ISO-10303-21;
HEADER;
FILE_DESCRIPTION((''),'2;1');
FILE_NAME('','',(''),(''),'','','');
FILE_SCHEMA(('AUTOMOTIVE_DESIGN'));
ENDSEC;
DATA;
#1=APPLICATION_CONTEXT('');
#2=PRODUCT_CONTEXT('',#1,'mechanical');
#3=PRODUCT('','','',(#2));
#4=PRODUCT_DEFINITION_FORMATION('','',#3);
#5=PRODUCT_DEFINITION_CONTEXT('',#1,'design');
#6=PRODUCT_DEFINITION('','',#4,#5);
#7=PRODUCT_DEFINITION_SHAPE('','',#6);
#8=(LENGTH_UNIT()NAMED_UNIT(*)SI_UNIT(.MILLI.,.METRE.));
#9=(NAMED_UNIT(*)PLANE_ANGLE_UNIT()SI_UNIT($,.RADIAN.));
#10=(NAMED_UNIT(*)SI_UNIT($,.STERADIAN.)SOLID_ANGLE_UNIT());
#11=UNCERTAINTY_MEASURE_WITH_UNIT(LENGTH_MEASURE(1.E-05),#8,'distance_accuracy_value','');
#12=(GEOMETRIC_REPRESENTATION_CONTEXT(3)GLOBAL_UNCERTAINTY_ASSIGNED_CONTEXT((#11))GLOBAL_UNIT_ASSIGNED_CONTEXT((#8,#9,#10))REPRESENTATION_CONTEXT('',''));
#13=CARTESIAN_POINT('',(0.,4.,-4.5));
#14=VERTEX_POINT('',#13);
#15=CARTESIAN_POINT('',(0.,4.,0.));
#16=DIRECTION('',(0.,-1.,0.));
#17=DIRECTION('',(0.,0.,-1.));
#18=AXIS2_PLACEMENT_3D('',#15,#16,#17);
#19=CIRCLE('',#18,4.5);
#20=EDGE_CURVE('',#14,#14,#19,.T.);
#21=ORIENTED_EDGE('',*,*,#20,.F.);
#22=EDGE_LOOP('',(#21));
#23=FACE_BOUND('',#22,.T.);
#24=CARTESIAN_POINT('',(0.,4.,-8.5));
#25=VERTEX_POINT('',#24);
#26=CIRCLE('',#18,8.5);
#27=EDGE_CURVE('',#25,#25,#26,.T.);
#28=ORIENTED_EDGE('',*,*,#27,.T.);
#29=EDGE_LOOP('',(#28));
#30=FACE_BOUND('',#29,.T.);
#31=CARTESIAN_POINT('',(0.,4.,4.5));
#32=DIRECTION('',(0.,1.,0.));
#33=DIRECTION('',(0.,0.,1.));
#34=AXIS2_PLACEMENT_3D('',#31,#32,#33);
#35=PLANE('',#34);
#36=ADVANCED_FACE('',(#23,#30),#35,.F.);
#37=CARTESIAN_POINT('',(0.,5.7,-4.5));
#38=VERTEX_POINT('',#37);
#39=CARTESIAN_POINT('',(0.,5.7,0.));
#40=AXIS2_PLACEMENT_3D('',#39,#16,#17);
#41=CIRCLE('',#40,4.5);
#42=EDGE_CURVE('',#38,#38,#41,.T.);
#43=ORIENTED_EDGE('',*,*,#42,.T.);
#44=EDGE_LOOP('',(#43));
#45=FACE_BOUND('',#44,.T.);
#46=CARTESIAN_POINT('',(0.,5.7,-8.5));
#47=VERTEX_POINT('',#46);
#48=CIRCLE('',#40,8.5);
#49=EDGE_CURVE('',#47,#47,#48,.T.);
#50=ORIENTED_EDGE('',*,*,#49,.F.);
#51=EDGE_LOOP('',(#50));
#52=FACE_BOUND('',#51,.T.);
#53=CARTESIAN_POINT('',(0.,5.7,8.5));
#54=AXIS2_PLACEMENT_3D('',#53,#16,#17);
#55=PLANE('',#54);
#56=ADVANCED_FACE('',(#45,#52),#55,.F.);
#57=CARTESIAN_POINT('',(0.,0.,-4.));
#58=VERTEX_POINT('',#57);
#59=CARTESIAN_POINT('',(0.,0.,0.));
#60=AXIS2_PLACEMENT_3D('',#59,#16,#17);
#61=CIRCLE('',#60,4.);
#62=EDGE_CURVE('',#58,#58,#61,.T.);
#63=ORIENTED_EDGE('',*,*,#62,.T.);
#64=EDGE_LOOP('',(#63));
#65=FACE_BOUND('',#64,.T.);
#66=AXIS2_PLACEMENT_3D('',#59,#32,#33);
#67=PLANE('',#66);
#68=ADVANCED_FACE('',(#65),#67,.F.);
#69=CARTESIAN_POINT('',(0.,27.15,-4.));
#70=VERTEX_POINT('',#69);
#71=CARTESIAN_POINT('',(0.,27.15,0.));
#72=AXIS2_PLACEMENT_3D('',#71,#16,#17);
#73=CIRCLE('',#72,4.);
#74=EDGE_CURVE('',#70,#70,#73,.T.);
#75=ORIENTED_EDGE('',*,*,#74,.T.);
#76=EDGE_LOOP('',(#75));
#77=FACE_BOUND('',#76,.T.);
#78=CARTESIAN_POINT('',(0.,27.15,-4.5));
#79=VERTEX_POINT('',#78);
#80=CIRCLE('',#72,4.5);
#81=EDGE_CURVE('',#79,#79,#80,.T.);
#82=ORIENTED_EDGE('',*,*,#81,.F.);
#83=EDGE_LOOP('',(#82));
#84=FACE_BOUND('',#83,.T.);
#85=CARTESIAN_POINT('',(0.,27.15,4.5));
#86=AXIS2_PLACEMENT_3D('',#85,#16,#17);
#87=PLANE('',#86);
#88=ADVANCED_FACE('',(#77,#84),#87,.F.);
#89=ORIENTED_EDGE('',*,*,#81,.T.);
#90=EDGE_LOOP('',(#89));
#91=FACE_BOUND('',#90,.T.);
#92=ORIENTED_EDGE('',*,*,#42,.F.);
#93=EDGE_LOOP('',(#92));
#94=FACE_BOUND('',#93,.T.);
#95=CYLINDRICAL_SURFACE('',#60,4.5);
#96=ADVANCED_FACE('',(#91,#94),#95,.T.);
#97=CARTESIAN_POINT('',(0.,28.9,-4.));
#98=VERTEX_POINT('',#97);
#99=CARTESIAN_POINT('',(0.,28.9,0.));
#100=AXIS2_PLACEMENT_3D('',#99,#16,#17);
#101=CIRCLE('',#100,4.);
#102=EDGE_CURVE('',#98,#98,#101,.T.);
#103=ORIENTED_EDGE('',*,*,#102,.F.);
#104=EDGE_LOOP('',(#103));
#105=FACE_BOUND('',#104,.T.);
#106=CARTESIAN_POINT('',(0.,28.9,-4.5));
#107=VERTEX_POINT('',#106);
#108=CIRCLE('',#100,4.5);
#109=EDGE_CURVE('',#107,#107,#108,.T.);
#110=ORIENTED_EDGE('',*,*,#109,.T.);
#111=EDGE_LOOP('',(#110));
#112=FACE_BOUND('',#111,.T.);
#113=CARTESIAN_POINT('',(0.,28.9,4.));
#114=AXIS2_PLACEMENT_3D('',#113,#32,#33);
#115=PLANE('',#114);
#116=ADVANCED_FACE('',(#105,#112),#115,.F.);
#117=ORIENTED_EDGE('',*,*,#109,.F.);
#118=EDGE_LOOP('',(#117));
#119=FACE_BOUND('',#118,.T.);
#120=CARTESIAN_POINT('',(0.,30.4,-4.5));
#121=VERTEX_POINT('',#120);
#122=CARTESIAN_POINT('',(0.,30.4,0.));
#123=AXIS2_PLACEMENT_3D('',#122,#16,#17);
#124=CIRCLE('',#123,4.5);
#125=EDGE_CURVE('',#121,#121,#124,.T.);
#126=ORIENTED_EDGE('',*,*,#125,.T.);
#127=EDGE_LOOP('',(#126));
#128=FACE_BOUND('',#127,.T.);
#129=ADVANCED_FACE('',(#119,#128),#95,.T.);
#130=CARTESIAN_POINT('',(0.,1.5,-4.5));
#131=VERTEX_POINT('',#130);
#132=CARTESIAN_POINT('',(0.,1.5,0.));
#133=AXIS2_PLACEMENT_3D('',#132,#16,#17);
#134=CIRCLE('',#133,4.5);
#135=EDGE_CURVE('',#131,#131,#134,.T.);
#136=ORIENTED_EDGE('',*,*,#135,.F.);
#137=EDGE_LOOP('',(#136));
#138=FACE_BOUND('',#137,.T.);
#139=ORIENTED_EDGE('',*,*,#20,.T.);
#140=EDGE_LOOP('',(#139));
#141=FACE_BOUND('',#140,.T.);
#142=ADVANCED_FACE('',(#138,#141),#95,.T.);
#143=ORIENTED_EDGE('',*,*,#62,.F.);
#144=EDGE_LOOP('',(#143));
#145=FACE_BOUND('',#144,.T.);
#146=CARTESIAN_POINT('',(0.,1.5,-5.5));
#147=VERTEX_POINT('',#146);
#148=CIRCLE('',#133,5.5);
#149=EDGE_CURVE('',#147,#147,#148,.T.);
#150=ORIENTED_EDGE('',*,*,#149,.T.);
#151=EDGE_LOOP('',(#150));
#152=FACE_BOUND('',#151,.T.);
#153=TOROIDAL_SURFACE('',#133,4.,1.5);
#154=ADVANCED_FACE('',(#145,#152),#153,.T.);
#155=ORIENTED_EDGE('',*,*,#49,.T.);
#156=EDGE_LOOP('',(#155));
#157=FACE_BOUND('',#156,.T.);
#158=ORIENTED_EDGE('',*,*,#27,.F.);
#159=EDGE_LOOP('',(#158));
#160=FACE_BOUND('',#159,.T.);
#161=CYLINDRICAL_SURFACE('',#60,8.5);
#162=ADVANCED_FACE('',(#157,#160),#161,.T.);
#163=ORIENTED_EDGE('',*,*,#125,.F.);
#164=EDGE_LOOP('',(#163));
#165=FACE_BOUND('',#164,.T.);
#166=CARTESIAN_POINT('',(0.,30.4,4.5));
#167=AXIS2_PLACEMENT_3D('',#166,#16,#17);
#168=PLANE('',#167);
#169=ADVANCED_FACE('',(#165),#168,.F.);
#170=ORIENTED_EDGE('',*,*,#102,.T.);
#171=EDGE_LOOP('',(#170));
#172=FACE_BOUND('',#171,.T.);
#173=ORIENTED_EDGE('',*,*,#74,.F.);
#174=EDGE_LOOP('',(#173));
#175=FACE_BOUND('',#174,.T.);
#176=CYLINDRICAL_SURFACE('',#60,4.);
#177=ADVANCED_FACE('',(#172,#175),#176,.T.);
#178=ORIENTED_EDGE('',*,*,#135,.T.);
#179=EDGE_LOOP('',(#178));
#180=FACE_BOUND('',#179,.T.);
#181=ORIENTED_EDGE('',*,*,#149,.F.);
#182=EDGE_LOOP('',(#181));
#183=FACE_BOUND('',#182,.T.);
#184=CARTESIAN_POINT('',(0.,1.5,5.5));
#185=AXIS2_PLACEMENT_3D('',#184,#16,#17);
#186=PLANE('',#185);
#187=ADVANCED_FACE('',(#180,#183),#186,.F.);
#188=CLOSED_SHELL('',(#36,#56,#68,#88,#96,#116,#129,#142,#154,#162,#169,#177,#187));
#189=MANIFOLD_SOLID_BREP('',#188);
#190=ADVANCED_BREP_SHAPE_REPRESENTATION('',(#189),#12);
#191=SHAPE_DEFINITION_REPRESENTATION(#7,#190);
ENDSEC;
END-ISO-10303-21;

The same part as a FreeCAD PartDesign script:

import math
import FreeCAD as App
import Part
import Sketcher

V = App.Vector
Q = App.Units.Quantity

doc = App.newDocument("Part")
body = doc.addObject("PartDesign::Body", "Body")

# Sketch on YZ plane
sketch1 = body.newObject("Sketcher::SketchObject", "Sketch")
sketch1.AttachmentSupport = (doc.getObject("YZ_Plane"), [""])
sketch1.MapMode = "FlatFace"
sketch1.addGeometry([
    Part.LineSegment(V(0, 0, 0), V(30.4, 0, 0)),  # 0
    Part.LineSegment(V(30.4, 0, 0), V(30.4, 4.5, 0)),  # 1
    Part.LineSegment(V(30.4, 4.5, 0), V(28.9, 4.5, 0)),  # 2
    Part.LineSegment(V(28.9, 4.5, 0), V(28.9, 4, 0)),  # 3
    Part.LineSegment(V(28.9, 4, 0), V(27.15, 4, 0)),  # 4
    Part.LineSegment(V(27.15, 4, 0), V(27.15, 4.5, 0)),  # 5
    Part.LineSegment(V(27.15, 4.5, 0), V(5.7, 4.5, 0)),  # 6
    Part.LineSegment(V(5.7, 4.5, 0), V(5.7, 8.5, 0)),  # 7
    Part.LineSegment(V(5.7, 8.5, 0), V(4, 8.5, 0)),  # 8
    Part.LineSegment(V(4, 8.5, 0), V(4, 4.5, 0)),  # 9
    Part.LineSegment(V(4, 4.5, 0), V(1.5, 4.5, 0)),  # 10
    Part.LineSegment(V(1.5, 4.5, 0), V(1.5, 5.5, 0)),  # 11
    Part.ArcOfCircle(Part.Circle(V(1.5, 4, 0), V(0, 0, 1), 1.5), math.radians(90), math.radians(180)),  # 12
    Part.LineSegment(V(0, 4, 0), V(0, 0, 0)),  # 13
], False)
sketch1.addConstraint([
    Sketcher.Constraint("Coincident", 0, 2, 1, 1),
    Sketcher.Constraint("Coincident", 1, 2, 2, 1),
    Sketcher.Constraint("Coincident", 2, 2, 3, 1),
    Sketcher.Constraint("Coincident", 3, 2, 4, 1),
    Sketcher.Constraint("Coincident", 4, 2, 5, 1),
    Sketcher.Constraint("Coincident", 5, 2, 6, 1),
    Sketcher.Constraint("Coincident", 6, 2, 7, 1),
    Sketcher.Constraint("Coincident", 7, 2, 8, 1),
    Sketcher.Constraint("Coincident", 8, 2, 9, 1),
    Sketcher.Constraint("Coincident", 9, 2, 10, 1),
    Sketcher.Constraint("Coincident", 10, 2, 11, 1),
    Sketcher.Constraint("Coincident", 11, 2, 12, 1),
    Sketcher.Constraint("Tangent", 12, 2, 13, 1),
    Sketcher.Constraint("Coincident", 13, 2, 0, 1),
    Sketcher.Constraint("Horizontal", 0),
    Sketcher.Constraint("Vertical", 1),
    Sketcher.Constraint("Horizontal", 2),
    Sketcher.Constraint("Vertical", 3),
    Sketcher.Constraint("Horizontal", 4),
    Sketcher.Constraint("Vertical", 5),
    Sketcher.Constraint("Horizontal", 6),
    Sketcher.Constraint("Vertical", 7),
    Sketcher.Constraint("Horizontal", 8),
    Sketcher.Constraint("Vertical", 9),
    Sketcher.Constraint("Horizontal", 10),
    Sketcher.Constraint("Vertical", 11),
    Sketcher.Constraint("Vertical", 13),
    Sketcher.Constraint("Coincident", 13, 2, -1, 1),
    Sketcher.Constraint("Horizontal", 12, 3, 3, 2),
    Sketcher.Constraint("Horizontal", 2, 2, 5, 2),
    Sketcher.Constraint("Horizontal", 6, 2, 9, 2),
    Sketcher.Constraint("Vertical", 12, 3, 10, 2),
    Sketcher.Constraint("Equal", 9, 13),
    Sketcher.Constraint("Radius", 12, Q("1.5 mm")),
    Sketcher.Constraint("DistanceY", 7, 1, 7, 2, Q("4 mm")),
    Sketcher.Constraint("DistanceY", 11, 1, 11, 2, Q("1 mm")),
    Sketcher.Constraint("DistanceX", 0, 1, 0, 2, Q("30.4 mm")),
    Sketcher.Constraint("DistanceX", 2, 2, 2, 1, Q("1.5 mm")),
    Sketcher.Constraint("DistanceX", 8, 2, 8, 1, Q("1.7 mm")),
    Sketcher.Constraint("DistanceX", 10, 2, 10, 1, Q("2.5 mm")),
    Sketcher.Constraint("DistanceX", 4, 2, 4, 1, Q("1.75 mm")),
])
revolution = body.newObject("PartDesign::Revolution", "Revolution")
revolution.Profile = sketch1
revolution.ReferenceAxis = (sketch1, ["H_Axis"])
revolution.Angle = 360

doc.recompute()
